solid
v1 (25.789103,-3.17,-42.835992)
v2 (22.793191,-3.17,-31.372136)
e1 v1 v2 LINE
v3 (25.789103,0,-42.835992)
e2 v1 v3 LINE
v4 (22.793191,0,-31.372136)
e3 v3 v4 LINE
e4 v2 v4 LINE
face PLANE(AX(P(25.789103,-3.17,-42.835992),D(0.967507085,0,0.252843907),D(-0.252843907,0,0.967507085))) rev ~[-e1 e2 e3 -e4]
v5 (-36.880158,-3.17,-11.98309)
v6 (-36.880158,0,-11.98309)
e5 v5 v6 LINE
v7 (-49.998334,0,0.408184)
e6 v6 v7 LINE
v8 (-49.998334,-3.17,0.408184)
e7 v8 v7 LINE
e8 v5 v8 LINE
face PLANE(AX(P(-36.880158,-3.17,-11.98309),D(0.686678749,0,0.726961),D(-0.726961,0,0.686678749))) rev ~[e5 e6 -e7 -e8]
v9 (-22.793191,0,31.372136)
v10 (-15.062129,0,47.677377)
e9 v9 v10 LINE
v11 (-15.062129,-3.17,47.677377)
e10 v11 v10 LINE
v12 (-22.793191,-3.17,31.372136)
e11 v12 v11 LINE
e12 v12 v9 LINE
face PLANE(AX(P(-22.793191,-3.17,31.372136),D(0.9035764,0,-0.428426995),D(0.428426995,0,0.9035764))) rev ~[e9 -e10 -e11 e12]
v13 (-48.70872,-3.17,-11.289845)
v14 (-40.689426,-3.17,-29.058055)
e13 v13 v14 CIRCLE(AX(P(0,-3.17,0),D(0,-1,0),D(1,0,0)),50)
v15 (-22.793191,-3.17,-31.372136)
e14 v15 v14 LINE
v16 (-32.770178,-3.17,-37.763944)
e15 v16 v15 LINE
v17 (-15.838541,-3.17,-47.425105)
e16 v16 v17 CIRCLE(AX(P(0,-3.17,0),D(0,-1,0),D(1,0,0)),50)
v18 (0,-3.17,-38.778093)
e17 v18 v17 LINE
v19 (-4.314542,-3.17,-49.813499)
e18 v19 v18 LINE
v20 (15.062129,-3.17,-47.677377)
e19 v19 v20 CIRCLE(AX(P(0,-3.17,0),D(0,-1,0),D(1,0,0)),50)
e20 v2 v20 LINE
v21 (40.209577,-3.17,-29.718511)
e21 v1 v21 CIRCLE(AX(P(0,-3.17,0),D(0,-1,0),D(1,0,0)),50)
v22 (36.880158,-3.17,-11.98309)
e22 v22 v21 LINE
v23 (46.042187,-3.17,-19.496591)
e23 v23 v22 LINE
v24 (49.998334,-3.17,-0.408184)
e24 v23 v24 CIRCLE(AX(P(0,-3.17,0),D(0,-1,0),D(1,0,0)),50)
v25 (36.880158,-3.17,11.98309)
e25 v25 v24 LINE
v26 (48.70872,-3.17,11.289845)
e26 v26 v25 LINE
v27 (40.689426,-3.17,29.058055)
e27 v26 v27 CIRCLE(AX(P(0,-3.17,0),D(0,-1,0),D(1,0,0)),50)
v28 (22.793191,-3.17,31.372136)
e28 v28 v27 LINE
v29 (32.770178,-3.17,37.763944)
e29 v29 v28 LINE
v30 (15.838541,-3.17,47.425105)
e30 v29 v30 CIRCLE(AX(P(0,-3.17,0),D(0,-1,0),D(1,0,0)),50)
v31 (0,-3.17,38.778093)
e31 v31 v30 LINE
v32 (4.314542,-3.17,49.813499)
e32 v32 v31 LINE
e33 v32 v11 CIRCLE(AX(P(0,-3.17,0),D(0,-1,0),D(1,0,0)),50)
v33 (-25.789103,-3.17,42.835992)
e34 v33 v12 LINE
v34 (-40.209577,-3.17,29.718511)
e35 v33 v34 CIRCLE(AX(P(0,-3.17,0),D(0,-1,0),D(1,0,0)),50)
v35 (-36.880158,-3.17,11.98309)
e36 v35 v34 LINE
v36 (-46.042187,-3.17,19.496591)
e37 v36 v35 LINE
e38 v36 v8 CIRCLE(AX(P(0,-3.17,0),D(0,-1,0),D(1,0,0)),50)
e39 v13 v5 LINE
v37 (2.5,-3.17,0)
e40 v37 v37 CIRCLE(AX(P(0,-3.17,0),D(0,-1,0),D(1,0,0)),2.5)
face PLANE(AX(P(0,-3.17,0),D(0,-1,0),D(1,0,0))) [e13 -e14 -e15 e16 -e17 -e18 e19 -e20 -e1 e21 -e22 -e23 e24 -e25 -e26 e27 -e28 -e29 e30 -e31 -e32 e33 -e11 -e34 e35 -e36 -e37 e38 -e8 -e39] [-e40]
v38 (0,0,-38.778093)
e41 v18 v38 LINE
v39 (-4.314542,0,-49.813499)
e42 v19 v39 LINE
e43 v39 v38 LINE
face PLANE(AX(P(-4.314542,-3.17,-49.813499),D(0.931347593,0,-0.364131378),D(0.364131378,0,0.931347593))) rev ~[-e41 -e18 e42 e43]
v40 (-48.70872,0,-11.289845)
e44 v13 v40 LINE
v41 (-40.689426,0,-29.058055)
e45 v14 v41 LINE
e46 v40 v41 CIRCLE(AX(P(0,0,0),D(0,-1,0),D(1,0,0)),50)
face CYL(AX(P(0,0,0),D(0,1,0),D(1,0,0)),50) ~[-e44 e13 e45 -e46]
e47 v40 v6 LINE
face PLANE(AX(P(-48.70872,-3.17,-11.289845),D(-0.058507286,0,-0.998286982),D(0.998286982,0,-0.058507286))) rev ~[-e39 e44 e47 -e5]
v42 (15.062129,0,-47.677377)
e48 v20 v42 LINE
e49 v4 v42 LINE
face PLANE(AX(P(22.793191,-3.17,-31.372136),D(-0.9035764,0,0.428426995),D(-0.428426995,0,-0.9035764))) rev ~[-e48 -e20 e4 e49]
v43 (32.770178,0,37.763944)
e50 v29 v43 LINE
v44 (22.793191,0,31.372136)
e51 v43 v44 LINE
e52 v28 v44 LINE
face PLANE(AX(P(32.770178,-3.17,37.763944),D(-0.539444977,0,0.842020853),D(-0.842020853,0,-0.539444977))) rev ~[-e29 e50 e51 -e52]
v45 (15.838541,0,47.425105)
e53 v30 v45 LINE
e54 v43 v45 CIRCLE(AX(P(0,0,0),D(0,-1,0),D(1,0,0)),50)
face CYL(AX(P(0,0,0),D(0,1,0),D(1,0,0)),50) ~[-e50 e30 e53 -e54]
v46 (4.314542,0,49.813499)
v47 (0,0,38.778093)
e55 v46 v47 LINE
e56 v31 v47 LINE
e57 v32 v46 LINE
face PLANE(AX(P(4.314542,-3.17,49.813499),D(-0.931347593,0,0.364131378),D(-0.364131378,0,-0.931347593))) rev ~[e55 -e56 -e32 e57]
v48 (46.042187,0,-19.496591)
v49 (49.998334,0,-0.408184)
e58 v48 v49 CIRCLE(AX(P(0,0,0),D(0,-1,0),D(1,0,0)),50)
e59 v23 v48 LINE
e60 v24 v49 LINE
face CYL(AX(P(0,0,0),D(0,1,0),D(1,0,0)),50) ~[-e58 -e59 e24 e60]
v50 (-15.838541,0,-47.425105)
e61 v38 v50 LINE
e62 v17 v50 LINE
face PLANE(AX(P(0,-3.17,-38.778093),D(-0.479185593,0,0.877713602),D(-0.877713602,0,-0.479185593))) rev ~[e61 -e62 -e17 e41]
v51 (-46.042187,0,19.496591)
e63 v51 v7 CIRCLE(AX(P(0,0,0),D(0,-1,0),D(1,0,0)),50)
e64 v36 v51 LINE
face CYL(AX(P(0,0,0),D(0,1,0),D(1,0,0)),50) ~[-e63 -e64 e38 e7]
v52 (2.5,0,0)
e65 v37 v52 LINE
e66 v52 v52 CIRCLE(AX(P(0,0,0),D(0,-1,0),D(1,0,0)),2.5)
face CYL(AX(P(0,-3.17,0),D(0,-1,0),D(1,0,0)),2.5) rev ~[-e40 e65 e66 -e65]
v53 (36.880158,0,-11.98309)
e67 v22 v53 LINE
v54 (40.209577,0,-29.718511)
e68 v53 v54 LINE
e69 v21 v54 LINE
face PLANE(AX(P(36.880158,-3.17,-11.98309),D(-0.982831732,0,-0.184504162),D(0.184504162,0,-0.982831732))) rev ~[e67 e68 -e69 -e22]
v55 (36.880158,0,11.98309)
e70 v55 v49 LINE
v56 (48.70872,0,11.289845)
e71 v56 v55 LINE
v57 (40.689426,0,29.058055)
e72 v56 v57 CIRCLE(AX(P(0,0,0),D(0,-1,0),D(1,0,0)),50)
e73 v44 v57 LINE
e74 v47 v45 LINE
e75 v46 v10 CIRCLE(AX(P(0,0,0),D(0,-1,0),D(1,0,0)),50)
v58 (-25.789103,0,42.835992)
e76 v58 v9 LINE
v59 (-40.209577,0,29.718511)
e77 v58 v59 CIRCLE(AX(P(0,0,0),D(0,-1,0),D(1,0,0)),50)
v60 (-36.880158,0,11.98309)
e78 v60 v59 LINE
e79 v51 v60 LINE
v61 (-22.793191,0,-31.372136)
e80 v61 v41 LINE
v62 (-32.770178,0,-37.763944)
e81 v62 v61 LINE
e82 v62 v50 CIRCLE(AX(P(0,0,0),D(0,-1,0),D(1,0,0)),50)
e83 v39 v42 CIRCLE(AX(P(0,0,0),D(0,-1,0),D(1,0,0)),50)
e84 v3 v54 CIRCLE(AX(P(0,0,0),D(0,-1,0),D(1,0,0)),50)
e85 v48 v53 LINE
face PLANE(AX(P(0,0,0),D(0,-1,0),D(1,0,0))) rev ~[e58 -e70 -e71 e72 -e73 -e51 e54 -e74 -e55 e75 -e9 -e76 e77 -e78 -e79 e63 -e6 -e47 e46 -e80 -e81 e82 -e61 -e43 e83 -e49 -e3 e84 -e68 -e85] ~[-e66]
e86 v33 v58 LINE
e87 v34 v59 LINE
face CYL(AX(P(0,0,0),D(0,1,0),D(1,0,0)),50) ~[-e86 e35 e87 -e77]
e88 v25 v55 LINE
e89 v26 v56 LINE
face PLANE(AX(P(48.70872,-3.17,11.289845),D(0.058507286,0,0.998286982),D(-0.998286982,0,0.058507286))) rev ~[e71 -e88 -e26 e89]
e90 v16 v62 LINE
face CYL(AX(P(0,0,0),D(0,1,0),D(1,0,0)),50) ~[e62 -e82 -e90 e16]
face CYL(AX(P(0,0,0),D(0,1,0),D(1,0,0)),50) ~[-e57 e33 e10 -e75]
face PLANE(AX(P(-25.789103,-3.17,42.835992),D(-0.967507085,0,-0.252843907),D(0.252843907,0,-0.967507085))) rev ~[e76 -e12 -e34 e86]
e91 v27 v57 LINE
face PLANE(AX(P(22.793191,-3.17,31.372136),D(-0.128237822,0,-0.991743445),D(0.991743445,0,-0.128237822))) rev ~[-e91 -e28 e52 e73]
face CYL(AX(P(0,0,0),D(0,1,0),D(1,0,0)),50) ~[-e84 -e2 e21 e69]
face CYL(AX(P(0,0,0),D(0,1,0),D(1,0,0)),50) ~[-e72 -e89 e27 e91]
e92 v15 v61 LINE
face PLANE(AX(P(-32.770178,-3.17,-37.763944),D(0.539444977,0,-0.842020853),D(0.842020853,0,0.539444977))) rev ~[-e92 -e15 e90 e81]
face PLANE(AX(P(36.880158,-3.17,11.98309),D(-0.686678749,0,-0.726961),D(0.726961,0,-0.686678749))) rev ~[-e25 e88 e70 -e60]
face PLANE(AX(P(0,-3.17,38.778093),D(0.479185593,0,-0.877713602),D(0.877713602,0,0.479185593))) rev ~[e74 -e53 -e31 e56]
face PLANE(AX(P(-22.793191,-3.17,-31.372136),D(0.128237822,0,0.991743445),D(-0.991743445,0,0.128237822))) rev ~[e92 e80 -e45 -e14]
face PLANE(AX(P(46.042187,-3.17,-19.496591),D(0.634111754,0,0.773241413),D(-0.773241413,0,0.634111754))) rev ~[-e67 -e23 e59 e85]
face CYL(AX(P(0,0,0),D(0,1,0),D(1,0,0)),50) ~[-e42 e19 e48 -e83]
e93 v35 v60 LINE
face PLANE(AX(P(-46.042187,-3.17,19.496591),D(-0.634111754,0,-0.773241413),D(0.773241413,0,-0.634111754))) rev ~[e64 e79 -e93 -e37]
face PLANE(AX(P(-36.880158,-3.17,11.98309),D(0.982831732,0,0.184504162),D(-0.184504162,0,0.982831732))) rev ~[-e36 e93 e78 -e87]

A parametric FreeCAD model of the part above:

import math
import FreeCAD as App
import Part
import Sketcher
Q = App.Units.Quantity

doc = App.newDocument("Part")
params = doc.addObject("Spreadsheet::Sheet", "Params")
for row, (alias, value) in enumerate([
    ("sketch1_diameter", "100 mm"),
    ("pad1_length", "3.17 mm"),
    ("sketch2_diameter", "5 mm"),
    ("pocket1_length", "25 mm"),
    ("sketch3_radius", "50 mm"),
    ("pocket2_length", "25 mm"),
], start=1):
    params.set(f"A{row}", alias)
    params.set(f"B{row}", "=" + value)
    params.setAlias(f"B{row}", alias)

body = doc.addObject("PartDesign::Body", "Body")

sketch1 = doc.addObject("Sketcher::SketchObject", "Sketch")
body.addObject(sketch1)
sketch1.AttachmentSupport = (doc.XZ_Plane, [""])
sketch1.MapMode = "FlatFace"
sketch1.addGeometry(Part.Circle(App.Vector(0, 0, 0), App.Vector(0, 0, 1), 50), False)
sketch1.addConstraint([
    Sketcher.Constraint("Coincident", 0, 3, -1, 1),
    Sketcher.Constraint("Diameter", 0, Q("100 mm")),
])
sketch1.setExpression("Constraints[1]", "Params.sketch1_diameter")
pad1 = doc.addObject("PartDesign::Pad", "Pad")
body.addObject(pad1)
pad1.Profile = sketch1
pad1.setExpression("Length", "Params.pad1_length")

sketch2 = doc.addObject("Sketcher::SketchObject", "Sketch001")
body.addObject(sketch2)
sketch2.AttachmentSupport = (doc.XZ_Plane, [""])
sketch2.MapMode = "FlatFace"
sketch2.AttachmentOffset = App.Placement(App.Vector(0, 0, 3.17), App.Rotation())
sketch2.addGeometry(Part.Circle(App.Vector(0, 0, 0), App.Vector(0, 0, 1), 2.5), False)
sketch2.addConstraint([
    Sketcher.Constraint("Coincident", 0, 3, -1, 1),
    Sketcher.Constraint("Diameter", 0, Q("5 mm")),
])
sketch2.setExpression("Constraints[1]", "Params.sketch2_diameter")
pocket1 = doc.addObject("PartDesign::Pocket", "Pocket")
body.addObject(pocket1)
pocket1.Profile = sketch2
pocket1.setExpression("Length", "Params.pocket1_length")

sketch3 = doc.addObject("Sketcher::SketchObject", "Sketch002")
body.addObject(sketch3)
sketch3.AttachmentSupport = (doc.XZ_Plane, [""])
sketch3.MapMode = "FlatFace"
sketch3.AttachmentOffset = App.Placement(App.Vector(0, 0, 3.17), App.Rotation())
sketch3.addGeometry([
    Part.LineSegment(App.Vector(-22.793191, 31.372136, 0), App.Vector(-15.062129, 47.677377, 0)),
    Part.ArcOfCircle(Part.Circle(App.Vector(0, 0, 0), App.Vector(0, 0, 1), 50), math.radians(107.53225), math.radians(121.049743)),
    Part.LineSegment(App.Vector(-25.789103, 42.835992, 0), App.Vector(-22.793191, 31.372136, 0)),
    Part.LineSegment(App.Vector(0, 38.778093, 0), App.Vector(15.838541, 47.425105, 0)),
    Part.ArcOfCircle(Part.Circle(App.Vector(0, 0, 0), App.Vector(0, 0, 1), 50), math.radians(71.53225), math.radians(85.049743)),
    Part.LineSegment(App.Vector(4.314542, 49.813499, 0), App.Vector(0, 38.778093, 0)),
    Part.ArcOfCircle(Part.Circle(App.Vector(0, 0, 0), App.Vector(0, 0, 1), 50), math.radians(35.53225), math.radians(49.049743)),
    Part.LineSegment(App.Vector(32.770178, 37.763944, 0), App.Vector(22.793191, 31.372136, 0)),
    Part.LineSegment(App.Vector(22.793191, 31.372136, 0), App.Vector(40.689426, 29.058055, 0)),
    Part.ArcOfCircle(Part.Circle(App.Vector(0, 0, 0), App.Vector(0, 0, 1), 50), math.radians(0), math.radians(13.049743)),
    Part.LineSegment(App.Vector(48.70872, 11.289845, 0), App.Vector(36.880158, 11.98309, 0)),
    Part.LineSegment(App.Vector(36.880158, 11.98309, 0), App.Vector(49.998334, -0.408184, 0)),
    Part.ArcOfCircle(Part.Circle(App.Vector(0.000001, 0, 0), App.Vector(0, 0, 1), 49.999999), math.radians(-0.46775), math.radians(0)),
    Part.ArcOfCircle(Part.Circle(App.Vector(0, 0, 0), App.Vector(0, 0, 1), 50), math.radians(-36.46775), math.radians(-22.950257)),
    Part.LineSegment(App.Vector(46.042187, -19.496591, 0), App.Vector(36.880158, -11.98309, 0)),
    Part.LineSegment(App.Vector(36.880158, -11.98309, 0), App.Vector(40.209577, -29.718511, 0)),
    Part.ArcOfCircle(Part.Circle(App.Vector(0, 0, 0), App.Vector(0, 0, 1), 50), math.radians(-72.46775), math.radians(-58.950257)),
    Part.LineSegment(App.Vector(25.789103, -42.835992, 0), App.Vector(22.793191, -31.372136, 0)),
    Part.LineSegment(App.Vector(22.793191, -31.372136, 0), App.Vector(15.062129, -47.677377, 0)),
    Part.ArcOfCircle(Part.Circle(App.Vector(0, 0, 0), App.Vector(0, 0, 1), 50), math.radians(-108.46775), math.radians(-94.950257)),
    Part.LineSegment(App.Vector(-4.314542, -49.813499, 0), App.Vector(0, -38.778093, 0)),
    Part.LineSegment(App.Vector(0, -38.778093, 0), App.Vector(-15.838541, -47.425105, 0)),
    Part.LineSegment(App.Vector(-22.793191, -31.372136, 0), App.Vector(-40.689426, -29.058055, 0)),
    Part.ArcOfCircle(Part.Circle(App.Vector(0, 0, 0), App.Vector(0, 0, 1), 50), math.radians(-144.46775), math.radians(-130.950257)),
    Part.LineSegment(App.Vector(-32.770178, -37.763944, 0), App.Vector(-22.793191, -31.372136, 0)),
    Part.LineSegment(App.Vector(-36.880158, -11.98309, 0), App.Vector(-49.998334, 0.408184, 0)),
    Part.ArcOfCircle(Part.Circle(App.Vector(0, 0, 0), App.Vector(0, 0, 1), 50), math.radians(179.53225), math.radians(193.049743)),
    Part.LineSegment(App.Vector(-48.70872, -11.289845, 0), App.Vector(-36.880158, -11.98309, 0)),
    Part.LineSegment(App.Vector(-36.880158, 11.98309, 0), App.Vector(-40.209577, 29.718511, 0)),
    Part.ArcOfCircle(Part.Circle(App.Vector(0, 0, 0), App.Vector(0, 0, 1), 50), math.radians(143.53225), math.radians(157.049743)),
    Part.LineSegment(App.Vector(-46.042187, 19.496591, 0), App.Vector(-36.880158, 11.98309, 0)),
], False)
sketch3.addConstraint([
    Sketcher.Constraint("Coincident", 0, 2, 1, 1),
    Sketcher.Constraint("Coincident", 1, 2, 2, 1),
    Sketcher.Constraint("Coincident", 2, 2, 0, 1),
    Sketcher.Constraint("Coincident", 3, 2, 4, 1),
    Sketcher.Constraint("Coincident", 4, 2, 5, 1),
    Sketcher.Constraint("Coincident", 5, 2, 3, 1),
    Sketcher.Constraint("Coincident", 6, 2, 7, 1),
    Sketcher.Constraint("Coincident", 7, 2, 8, 1),
    Sketcher.Constraint("Coincident", 8, 2, 6, 1),
    Sketcher.Constraint("Coincident", 9, 2, 10, 1),
    Sketcher.Constraint("Coincident", 10, 2, 11, 1),
    Sketcher.Constraint("Coincident", 11, 2, 12, 1),
    Sketcher.Constraint("Tangent", 12, 2, 9, 1),
    Sketcher.Constraint("Coincident", 13, 2, 14, 1),
    Sketcher.Constraint("Coincident", 14, 2, 15, 1),
    Sketcher.Constraint("Coincident", 15, 2, 13, 1),
    Sketcher.Constraint("Coincident", 16, 2, 17, 1),
    Sketcher.Constraint("Coincident", 17, 2, 18, 1),
    Sketcher.Constraint("Coincident", 18, 2, 16, 1),
    Sketcher.Constraint("Coincident", 19, 2, 20, 1),
    Sketcher.Constraint("Coincident", 20, 2, 21, 1),
    Sketcher.Constraint("Coincident", 21, 2, 19, 1),
    Sketcher.Constraint("Coincident", 22, 2, 23, 1),
    Sketcher.Constraint("Coincident", 23, 2, 24, 1),
    Sketcher.Constraint("Coincident", 24, 2, 22, 1),
    Sketcher.Constraint("Coincident", 25, 2, 26, 1),
    Sketcher.Constraint("Coincident", 26, 2, 27, 1),
    Sketcher.Constraint("Coincident", 27, 2, 25, 1),
    Sketcher.Constraint("Coincident", 28, 2, 29, 1),
    Sketcher.Constraint("Coincident", 29, 2, 30, 1),
    Sketcher.Constraint("Coincident", 30, 2, 28, 1),
    Sketcher.Constraint("Coincident", 1, 3, -1, 1),
    Sketcher.Constraint("Coincident", 4, 3, -1, 1),
    Sketcher.Constraint("Coincident", 6, 3, -1, 1),
    Sketcher.Constraint("Coincident", 9, 3, -1, 1),
    Sketcher.Constraint("Coincident", 13, 3, -1, 1),
    Sketcher.Constraint("Coincident", 16, 3, -1, 1),
    Sketcher.Constraint("Coincident", 19, 3, -1, 1),
    Sketcher.Constraint("Coincident", 23, 3, -1, 1),
    Sketcher.Constraint("Coincident", 26, 3, -1, 1),
    Sketcher.Constraint("Coincident", 29, 3, -1, 1),
    Sketcher.Constraint("Equal", 1, 4),
    Sketcher.Constraint("Equal", 4, 6),
    Sketcher.Constraint("Equal", 6, 9),
    Sketcher.Constraint("Equal", 9, 12),
    Sketcher.Constraint("Equal", 12, 13),
    Sketcher.Constraint("Equal", 13, 16),
    Sketcher.Constraint("Equal", 16, 19),
    Sketcher.Constraint("Equal", 19, 23),
    Sketcher.Constraint("Equal", 23, 26),
    Sketcher.Constraint("Equal", 26, 29),
    Sketcher.Constraint("Symmetric", 2, 2, 17, 2, -1, 1),
    Sketcher.Constraint("Symmetric", 5, 2, 20, 2, -1, 1),
    Sketcher.Constraint("Symmetric", 7, 2, 24, 2, -1, 1),
    Sketcher.Constraint("Symmetric", 10, 2, 27, 2, -1, 1),
    Sketcher.Constraint("Symmetric", 14, 2, 30, 2, -1, 1),
    Sketcher.Constraint("Symmetric", 2, 2, 7, 2, -2),
    Sketcher.Constraint("Symmetric", 14, 2, 27, 2, -2),
    Sketcher.Constraint("PointOnObject", 5, 2, -2),
    Sketcher.Constraint("PointOnObject", 12, 2, -1),
    Sketcher.Constraint("Parallel", 2, 17),
    Sketcher.Constraint("Parallel", 0, 18),
    Sketcher.Constraint("Parallel", 5, 20),
    Sketcher.Constraint("Parallel", 3, 21),
    Sketcher.Constraint("Parallel", 8, 22),
    Sketcher.Constraint("Parallel", 7, 24),
    Sketcher.Constraint("Parallel", 11, 25),
    Sketcher.Constraint("Parallel", 10, 27),
    Sketcher.Constraint("Parallel", 15, 28),
    Sketcher.Constraint("Parallel", 14, 30),
    Sketcher.Constraint("Equal", 0, 3),
    Sketcher.Constraint("Equal", 2, 5),
    Sketcher.Constraint("Equal", 5, 7),
    Sketcher.Constraint("Equal", 3, 8),
    Sketcher.Constraint("Equal", 7, 10),
    Sketcher.Constraint("Equal", 8, 11),
    Sketcher.Constraint("Equal", 10, 14),
    Sketcher.Constraint("Equal", 11, 15),
    Sketcher.Constraint("Radius", 1, Q("50 mm")),
    Sketcher.Constraint("DistanceX", 4, 2, 3, 2, Q("11.523999 mm")),
    Sketcher.Constraint("DistanceY", -1, 1, 4, 2, Q("49.813499 mm")),
    Sketcher.Constraint("DistanceY", 5, 2, 1, 2, Q("4.057899 mm")),
    Sketcher.Constraint("DistanceY", 9, 2, 6, 2, Q("26.474099 mm")),
    Sketcher.Constraint("DistanceY", 13, 2, 14, 2, Q("7.513501 mm")),
    Sketcher.Constraint("DistanceY", 15, 2, 10, 2, Q("41.701601 mm")),
    Sketcher.Constraint("DistanceY", 16, 2, 13, 2, Q("23.339401 mm")),
])
sketch3.setExpression("Constraints[78]", "Params.sketch3_radius")
pocket2 = doc.addObject("PartDesign::Pocket", "Pocket001")
body.addObject(pocket2)
pocket2.Profile = sketch3
pocket2.setExpression("Length", "Params.pocket2_length")

doc.recompute()
